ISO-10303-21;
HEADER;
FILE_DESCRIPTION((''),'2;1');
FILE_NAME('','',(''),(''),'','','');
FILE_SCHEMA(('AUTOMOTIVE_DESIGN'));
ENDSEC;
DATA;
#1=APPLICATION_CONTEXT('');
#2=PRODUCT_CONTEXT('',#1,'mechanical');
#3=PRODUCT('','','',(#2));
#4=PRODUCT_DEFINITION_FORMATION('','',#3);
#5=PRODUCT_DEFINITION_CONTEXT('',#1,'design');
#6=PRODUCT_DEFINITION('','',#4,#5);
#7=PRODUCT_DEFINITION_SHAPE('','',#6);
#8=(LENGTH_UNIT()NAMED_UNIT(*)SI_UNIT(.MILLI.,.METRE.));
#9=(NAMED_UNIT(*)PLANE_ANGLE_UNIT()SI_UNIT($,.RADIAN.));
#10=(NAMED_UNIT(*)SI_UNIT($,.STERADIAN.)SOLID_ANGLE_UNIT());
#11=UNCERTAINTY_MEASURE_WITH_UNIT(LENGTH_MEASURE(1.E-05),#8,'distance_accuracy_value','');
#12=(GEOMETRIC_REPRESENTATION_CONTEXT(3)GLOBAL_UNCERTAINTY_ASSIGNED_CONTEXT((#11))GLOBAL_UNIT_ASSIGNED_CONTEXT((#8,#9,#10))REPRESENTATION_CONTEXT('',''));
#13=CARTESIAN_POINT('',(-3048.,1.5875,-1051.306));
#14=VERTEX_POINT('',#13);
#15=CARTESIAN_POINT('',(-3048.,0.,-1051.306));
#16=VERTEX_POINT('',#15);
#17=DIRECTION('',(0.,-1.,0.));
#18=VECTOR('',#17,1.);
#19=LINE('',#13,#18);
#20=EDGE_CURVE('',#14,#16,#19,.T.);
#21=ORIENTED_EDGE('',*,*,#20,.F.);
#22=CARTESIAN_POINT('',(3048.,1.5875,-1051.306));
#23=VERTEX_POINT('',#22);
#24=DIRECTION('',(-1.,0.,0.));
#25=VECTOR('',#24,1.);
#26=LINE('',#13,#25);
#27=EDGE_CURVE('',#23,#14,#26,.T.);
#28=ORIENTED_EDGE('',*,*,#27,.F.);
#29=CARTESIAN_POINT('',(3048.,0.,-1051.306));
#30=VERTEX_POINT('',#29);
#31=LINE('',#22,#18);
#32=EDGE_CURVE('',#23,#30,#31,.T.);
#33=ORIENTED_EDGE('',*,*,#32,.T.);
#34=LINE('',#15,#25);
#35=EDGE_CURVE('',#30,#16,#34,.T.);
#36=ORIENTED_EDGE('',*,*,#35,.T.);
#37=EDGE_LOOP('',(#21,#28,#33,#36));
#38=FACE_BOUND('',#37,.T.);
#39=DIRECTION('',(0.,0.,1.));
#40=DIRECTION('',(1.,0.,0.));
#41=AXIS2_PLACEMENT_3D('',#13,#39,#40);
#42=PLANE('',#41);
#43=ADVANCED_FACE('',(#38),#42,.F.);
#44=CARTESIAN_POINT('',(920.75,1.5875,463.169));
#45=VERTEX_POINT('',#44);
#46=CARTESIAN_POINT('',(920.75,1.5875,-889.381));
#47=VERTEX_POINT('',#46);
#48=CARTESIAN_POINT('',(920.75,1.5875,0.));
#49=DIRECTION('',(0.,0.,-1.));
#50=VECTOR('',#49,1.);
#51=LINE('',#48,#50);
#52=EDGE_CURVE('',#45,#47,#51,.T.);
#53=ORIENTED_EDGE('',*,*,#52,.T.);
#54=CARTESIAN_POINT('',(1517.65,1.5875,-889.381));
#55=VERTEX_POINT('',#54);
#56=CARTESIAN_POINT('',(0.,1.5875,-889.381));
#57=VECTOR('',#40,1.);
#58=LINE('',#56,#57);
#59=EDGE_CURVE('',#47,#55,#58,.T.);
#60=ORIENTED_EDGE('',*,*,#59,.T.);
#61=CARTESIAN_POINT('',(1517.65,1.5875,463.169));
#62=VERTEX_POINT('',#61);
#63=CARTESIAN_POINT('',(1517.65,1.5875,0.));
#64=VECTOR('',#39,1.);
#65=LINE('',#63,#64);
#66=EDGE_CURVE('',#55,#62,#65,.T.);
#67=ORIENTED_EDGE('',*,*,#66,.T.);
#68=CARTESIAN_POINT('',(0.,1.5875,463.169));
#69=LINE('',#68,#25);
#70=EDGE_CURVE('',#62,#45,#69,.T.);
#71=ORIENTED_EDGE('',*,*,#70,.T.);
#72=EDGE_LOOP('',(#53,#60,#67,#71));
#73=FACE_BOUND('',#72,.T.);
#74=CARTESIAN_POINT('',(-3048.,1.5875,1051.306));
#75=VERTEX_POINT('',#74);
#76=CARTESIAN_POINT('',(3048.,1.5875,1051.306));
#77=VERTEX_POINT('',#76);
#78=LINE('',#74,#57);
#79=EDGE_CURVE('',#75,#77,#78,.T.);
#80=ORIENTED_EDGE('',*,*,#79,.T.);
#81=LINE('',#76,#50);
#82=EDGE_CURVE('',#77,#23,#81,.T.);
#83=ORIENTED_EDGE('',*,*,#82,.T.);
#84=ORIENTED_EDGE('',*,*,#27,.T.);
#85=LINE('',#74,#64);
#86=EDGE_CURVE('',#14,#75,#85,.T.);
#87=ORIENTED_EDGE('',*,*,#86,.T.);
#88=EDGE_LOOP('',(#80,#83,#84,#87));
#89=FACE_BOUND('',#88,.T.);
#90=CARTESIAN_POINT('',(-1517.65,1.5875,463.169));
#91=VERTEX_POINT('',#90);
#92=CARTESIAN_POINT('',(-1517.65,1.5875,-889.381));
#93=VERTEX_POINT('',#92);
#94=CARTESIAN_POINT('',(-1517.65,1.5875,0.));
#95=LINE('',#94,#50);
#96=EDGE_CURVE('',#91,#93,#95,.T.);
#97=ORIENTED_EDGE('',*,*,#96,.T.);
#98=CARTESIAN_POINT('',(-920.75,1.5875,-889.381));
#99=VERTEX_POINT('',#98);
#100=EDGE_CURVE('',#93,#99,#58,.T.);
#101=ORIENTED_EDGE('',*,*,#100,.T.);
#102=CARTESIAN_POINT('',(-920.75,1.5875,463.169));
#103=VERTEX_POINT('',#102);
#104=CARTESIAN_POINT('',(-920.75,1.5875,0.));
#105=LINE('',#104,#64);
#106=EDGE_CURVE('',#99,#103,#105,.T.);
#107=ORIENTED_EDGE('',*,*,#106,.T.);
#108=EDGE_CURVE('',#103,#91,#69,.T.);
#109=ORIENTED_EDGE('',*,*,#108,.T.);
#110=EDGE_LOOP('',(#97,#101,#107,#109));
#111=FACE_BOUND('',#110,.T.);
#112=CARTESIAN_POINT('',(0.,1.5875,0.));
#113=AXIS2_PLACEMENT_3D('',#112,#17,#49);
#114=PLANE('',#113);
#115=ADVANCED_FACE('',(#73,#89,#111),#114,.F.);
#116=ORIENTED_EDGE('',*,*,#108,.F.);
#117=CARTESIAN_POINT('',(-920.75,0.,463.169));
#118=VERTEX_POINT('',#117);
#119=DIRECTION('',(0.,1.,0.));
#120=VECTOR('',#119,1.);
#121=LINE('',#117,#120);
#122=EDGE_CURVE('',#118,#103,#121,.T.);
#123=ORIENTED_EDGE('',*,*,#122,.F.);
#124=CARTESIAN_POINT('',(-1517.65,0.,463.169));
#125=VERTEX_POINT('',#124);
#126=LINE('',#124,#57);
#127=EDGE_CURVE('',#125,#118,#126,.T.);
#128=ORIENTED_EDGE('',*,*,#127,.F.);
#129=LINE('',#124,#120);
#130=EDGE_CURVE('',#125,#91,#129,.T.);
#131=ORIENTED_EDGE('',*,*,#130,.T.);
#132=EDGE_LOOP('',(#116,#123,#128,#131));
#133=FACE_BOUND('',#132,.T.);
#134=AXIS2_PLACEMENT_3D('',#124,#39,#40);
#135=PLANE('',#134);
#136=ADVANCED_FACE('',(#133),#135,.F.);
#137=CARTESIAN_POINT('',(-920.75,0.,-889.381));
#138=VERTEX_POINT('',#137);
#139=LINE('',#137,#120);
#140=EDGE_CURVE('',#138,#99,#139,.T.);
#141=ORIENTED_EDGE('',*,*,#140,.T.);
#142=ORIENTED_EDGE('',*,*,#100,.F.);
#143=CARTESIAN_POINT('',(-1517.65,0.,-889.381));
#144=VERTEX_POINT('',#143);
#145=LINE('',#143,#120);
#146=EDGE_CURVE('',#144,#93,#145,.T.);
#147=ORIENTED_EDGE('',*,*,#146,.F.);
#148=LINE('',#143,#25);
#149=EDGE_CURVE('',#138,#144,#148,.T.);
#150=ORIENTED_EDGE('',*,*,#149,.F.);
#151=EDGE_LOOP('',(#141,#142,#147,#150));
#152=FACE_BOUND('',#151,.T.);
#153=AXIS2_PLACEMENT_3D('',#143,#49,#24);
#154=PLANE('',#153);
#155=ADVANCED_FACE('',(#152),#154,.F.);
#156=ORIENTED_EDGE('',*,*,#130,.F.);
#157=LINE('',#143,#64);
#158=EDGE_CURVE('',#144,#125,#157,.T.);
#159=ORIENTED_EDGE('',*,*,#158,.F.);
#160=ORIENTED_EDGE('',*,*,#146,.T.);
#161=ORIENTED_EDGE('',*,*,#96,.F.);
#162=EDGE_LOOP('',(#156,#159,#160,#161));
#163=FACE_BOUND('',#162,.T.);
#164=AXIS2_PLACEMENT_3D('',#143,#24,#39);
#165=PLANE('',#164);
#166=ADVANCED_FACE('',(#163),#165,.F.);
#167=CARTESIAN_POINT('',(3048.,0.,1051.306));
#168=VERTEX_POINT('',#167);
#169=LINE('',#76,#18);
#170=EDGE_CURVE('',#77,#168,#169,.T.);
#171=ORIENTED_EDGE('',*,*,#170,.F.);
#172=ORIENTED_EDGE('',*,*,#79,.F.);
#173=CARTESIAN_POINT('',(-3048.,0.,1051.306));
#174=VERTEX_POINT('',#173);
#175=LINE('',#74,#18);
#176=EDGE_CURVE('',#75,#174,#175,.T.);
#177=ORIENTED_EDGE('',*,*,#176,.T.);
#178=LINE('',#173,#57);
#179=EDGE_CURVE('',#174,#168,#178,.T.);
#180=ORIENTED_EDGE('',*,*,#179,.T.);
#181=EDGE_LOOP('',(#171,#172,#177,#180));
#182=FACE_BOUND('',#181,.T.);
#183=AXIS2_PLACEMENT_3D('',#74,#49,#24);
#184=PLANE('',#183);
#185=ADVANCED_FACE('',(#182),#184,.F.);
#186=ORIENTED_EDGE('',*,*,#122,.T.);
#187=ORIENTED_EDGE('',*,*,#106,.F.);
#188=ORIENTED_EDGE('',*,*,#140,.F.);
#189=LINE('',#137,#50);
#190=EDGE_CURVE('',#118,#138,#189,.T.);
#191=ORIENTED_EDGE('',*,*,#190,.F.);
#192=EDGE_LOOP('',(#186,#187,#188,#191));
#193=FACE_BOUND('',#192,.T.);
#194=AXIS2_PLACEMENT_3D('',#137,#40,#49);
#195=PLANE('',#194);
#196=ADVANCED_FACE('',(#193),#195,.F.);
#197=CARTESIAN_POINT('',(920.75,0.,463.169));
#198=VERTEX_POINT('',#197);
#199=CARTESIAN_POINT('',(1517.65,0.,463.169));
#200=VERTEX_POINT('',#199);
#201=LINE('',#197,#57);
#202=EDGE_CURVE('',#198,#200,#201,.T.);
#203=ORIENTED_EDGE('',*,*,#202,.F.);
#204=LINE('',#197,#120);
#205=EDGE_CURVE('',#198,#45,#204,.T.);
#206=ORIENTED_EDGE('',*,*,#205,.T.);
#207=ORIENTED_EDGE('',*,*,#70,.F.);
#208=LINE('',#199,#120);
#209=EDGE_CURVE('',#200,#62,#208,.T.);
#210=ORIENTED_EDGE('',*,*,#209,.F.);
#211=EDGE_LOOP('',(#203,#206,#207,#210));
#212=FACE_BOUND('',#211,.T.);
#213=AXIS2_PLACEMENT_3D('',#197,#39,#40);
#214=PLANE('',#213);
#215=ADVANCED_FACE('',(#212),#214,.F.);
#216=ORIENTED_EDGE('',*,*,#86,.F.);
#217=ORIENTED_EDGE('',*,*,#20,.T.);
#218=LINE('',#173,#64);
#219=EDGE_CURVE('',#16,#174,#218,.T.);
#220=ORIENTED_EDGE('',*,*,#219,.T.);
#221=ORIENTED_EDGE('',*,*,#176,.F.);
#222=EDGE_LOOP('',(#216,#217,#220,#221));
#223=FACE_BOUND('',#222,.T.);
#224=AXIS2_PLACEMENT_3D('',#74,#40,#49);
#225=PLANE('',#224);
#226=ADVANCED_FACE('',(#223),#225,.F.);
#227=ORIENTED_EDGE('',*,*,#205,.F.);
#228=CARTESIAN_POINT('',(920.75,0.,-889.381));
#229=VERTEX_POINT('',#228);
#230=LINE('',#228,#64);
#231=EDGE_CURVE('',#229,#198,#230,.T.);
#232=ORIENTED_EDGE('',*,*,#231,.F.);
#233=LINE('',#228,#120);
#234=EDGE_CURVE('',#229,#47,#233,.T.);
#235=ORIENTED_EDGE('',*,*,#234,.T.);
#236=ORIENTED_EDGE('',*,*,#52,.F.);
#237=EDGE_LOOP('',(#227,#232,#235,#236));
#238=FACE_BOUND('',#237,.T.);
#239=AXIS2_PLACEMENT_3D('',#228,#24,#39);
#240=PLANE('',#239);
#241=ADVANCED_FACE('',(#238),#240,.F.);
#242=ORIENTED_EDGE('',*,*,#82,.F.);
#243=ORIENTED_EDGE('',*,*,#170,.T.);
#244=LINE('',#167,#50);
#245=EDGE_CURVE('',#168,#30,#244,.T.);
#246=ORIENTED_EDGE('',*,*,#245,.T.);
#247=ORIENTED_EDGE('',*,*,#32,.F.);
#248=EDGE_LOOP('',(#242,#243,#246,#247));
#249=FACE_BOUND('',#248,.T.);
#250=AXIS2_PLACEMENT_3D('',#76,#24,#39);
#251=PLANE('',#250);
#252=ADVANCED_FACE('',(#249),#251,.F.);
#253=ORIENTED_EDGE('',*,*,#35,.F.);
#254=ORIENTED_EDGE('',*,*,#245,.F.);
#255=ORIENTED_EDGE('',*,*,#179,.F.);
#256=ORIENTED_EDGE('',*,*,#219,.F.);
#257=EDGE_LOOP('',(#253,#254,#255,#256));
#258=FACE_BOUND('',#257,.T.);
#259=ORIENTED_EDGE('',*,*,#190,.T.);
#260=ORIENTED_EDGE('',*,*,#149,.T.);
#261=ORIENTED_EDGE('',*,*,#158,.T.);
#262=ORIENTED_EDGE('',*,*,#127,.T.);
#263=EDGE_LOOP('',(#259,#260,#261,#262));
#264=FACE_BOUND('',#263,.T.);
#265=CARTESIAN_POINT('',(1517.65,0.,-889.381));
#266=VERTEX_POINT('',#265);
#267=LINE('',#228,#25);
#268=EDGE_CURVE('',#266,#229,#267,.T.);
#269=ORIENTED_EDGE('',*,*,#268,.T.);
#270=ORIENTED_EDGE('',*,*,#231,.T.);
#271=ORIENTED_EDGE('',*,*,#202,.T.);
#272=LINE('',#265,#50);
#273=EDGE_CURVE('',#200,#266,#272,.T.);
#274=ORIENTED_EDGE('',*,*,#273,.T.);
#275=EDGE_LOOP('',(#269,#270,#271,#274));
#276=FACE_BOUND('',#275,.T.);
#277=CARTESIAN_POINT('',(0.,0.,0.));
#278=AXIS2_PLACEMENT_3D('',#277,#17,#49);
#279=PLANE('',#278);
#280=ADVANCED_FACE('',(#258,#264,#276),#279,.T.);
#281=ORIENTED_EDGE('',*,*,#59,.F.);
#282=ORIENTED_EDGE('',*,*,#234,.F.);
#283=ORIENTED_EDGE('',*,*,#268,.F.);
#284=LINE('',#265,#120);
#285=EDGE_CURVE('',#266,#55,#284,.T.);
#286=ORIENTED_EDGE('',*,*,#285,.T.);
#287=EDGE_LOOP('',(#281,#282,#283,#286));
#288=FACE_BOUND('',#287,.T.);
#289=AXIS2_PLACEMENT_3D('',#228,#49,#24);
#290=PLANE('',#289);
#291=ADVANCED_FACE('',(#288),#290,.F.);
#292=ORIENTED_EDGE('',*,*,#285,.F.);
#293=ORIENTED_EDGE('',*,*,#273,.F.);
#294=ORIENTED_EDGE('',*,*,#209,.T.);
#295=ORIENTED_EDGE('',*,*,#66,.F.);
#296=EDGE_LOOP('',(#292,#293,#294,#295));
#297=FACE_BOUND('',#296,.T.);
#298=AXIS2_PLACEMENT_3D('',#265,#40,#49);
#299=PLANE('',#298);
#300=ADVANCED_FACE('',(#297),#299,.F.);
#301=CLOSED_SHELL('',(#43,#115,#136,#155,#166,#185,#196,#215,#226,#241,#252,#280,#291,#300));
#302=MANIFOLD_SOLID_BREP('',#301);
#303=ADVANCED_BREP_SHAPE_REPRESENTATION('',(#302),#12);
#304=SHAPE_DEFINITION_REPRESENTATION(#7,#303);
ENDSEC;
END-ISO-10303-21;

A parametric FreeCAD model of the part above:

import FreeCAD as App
import Part
import Sketcher

V = App.Vector
Q = App.Units.Quantity


def add_polygon(sketch, points):
    """Adds a closed chain of lines whose ends are joined by coincident constraints."""
    first, n = sketch.GeometryCount, len(points)
    for a, b in zip(points, points[1:] + points[:1]):
        sketch.addGeometry(Part.LineSegment(App.Vector(*a, 0), App.Vector(*b, 0)), False)
    for i in range(n):
        sketch.addConstraint(Sketcher.Constraint("Coincident", first + i, 2, first + (i + 1) % n, 1))

doc = App.newDocument("Part")
body = doc.addObject("PartDesign::Body", "Body")

sketch1 = body.newObject("Sketcher::SketchObject", "Sketch")
sketch1.AttachmentSupport = (doc.getObject("XZ_Plane"), [""])
sketch1.MapMode = "FlatFace"
add_polygon(sketch1, [(-3048, -1051), (-3048, 1051), (3048, 1051), (3048, -1051)])
sketch1.addConstraint(Sketcher.Constraint("Vertical", 0))
sketch1.addConstraint(Sketcher.Constraint("Horizontal", 1))
sketch1.addConstraint(Sketcher.Constraint("Vertical", 2))
sketch1.addConstraint(Sketcher.Constraint("Horizontal", 3))
sketch1.addConstraint(Sketcher.Constraint("Symmetric", 0, 2, 2, 2, -1, 1))
sketch1.addConstraint(Sketcher.Constraint("DistanceX", 1, 1, 1, 2, Q("240 in")))
sketch1.addConstraint(Sketcher.Constraint("DistanceY", 0, 1, 0, 2, Q("82.78 in")))
pad1 = body.newObject("PartDesign::Pad", "Pad")
pad1.Profile = sketch1
pad1.Length = Q("0.0625 in")
pad1.Reversed = True

sketch2 = body.newObject("Sketcher::SketchObject", "Sketch001")
sketch2.AttachmentSupport = (doc.getObject("XZ_Plane"), [""])
sketch2.MapMode = "FlatFace"
sketch2.AttachmentOffset = App.Placement(V(0, 0, -0.0625 * 25.4), App.Rotation())
add_polygon(sketch2, [(-1518, -889), (-1518, 463), (-921, 463), (-921, -889)])
add_polygon(sketch2, [(921, -889), (921, 463), (1518, 463), (1518, -889)])
sketch2.addConstraint(Sketcher.Constraint("Vertical", 0))
sketch2.addConstraint(Sketcher.Constraint("Horizontal", 1))
sketch2.addConstraint(Sketcher.Constraint("Vertical", 2))
sketch2.addConstraint(Sketcher.Constraint("Horizontal", 3))
sketch2.addConstraint(Sketcher.Constraint("Vertical", 4))
sketch2.addConstraint(Sketcher.Constraint("Horizontal", 5))
sketch2.addConstraint(Sketcher.Constraint("Vertical", 6))
sketch2.addConstraint(Sketcher.Constraint("Horizontal", 7))
sketch2.addConstraint(Sketcher.Constraint("Symmetric", 1, 2, 4, 2, -2))
sketch2.addConstraint(Sketcher.Constraint("Symmetric", 3, 2, 6, 2, -2))
sketch2.addConstraint(Sketcher.Constraint("DistanceX", 1, 1, 1, 2, Q("23.5 in")))
sketch2.addConstraint(Sketcher.Constraint("DistanceX", 0, 2, 4, 2, Q("96 in")))
sketch2.addConstraint(Sketcher.Constraint("DistanceY", 0, 1, 0, 2, Q("53.25 in")))
sketch2.addConstraint(Sketcher.Constraint("DistanceY", -1, 1, 0, 2, Q("18.235 in")))
pocket1 = body.newObject("PartDesign::Pocket", "Pocket")
pocket1.Profile = sketch2
pocket1.Type = "ThroughAll"
pocket1.Midplane = True

doc.recompute()
